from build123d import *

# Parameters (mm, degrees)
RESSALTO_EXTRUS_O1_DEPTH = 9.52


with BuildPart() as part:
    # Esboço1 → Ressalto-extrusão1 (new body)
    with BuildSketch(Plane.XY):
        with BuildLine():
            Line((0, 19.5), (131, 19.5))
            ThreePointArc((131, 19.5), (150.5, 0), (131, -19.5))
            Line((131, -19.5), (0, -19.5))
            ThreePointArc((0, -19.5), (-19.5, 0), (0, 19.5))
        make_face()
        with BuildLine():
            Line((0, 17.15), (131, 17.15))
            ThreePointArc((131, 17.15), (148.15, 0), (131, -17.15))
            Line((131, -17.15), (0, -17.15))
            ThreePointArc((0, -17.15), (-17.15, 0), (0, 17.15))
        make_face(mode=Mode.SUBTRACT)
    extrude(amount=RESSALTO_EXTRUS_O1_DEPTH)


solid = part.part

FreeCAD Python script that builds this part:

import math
import FreeCAD as App
import Part
import Sketcher

V = App.Vector
Q = App.Units.Quantity

doc = App.newDocument("Part")
body = doc.addObject("PartDesign::Body", "Body")

sketch1 = body.newObject("Sketcher::SketchObject", "Sketch")
sketch1.AttachmentSupport = (doc.getObject("XY_Plane"), [""])
sketch1.MapMode = "FlatFace"
sketch1.addGeometry(Part.LineSegment(V(131, 20, 0), V(0, 20, 0)), False)
sketch1.addGeometry(Part.ArcOfCircle(Part.Circle(V(0, 0, 0), V(0, 0, 1), 20), math.radians(90), math.radians(270)), False)
sketch1.addGeometry(Part.LineSegment(V(0, -20, 0), V(131, -20, 0)), False)
sketch1.addGeometry(Part.ArcOfCircle(Part.Circle(V(131, 0, 0), V(0, 0, 1), 20), math.radians(-90), math.radians(90)), False)
sketch1.addGeometry(Part.LineSegment(V(0, 17, 0), V(131, 17, 0)), False)
sketch1.addGeometry(Part.ArcOfCircle(Part.Circle(V(131, 0, 0), V(0, 0, 1), 17), math.radians(-90), math.radians(90)), False)
sketch1.addGeometry(Part.LineSegment(V(131, -17, 0), V(0, -17, 0)), False)
sketch1.addGeometry(Part.ArcOfCircle(Part.Circle(V(0, 0, 0), V(0, 0, 1), 17), math.radians(90), math.radians(270)), False)
sketch1.addConstraint(Sketcher.Constraint("Tangent", 0, 2, 1, 1))
sketch1.addConstraint(Sketcher.Constraint("Tangent", 1, 2, 2, 1))
sketch1.addConstraint(Sketcher.Constraint("Tangent", 2, 2, 3, 1))
sketch1.addConstraint(Sketcher.Constraint("Tangent", 3, 2, 0, 1))
sketch1.addConstraint(Sketcher.Constraint("Tangent", 4, 2, 5, 2))
sketch1.addConstraint(Sketcher.Constraint("Tangent", 5, 1, 6, 1))
sketch1.addConstraint(Sketcher.Constraint("Tangent", 6, 2, 7, 2))
sketch1.addConstraint(Sketcher.Constraint("Tangent", 7, 1, 4, 1))
sketch1.addConstraint(Sketcher.Constraint("Horizontal", 0))
sketch1.addConstraint(Sketcher.Constraint("Horizontal", 2))
sketch1.addConstraint(Sketcher.Constraint("Horizontal", 4))
sketch1.addConstraint(Sketcher.Constraint("Horizontal", 6))
sketch1.addConstraint(Sketcher.Constraint("Coincident", 1, 3, -1, 1))
sketch1.addConstraint(Sketcher.Constraint("Coincident", 7, 3, -1, 1))
sketch1.addConstraint(Sketcher.Constraint("Vertical", 5, 3, 2, 2))
sketch1.addConstraint(Sketcher.Constraint("Radius", 1, Q("19.5 mm")))
sketch1.addConstraint(Sketcher.Constraint("DistanceX", 0, 2, 0, 1, Q("131 mm")))
sketch1.addConstraint(Sketcher.Constraint("Radius", 5, Q("17.15 mm")))
pad1 = body.newObject("PartDesign::Pad", "Pad")
pad1.Profile = sketch1
pad1.Length = 9.52

doc.recompute()
